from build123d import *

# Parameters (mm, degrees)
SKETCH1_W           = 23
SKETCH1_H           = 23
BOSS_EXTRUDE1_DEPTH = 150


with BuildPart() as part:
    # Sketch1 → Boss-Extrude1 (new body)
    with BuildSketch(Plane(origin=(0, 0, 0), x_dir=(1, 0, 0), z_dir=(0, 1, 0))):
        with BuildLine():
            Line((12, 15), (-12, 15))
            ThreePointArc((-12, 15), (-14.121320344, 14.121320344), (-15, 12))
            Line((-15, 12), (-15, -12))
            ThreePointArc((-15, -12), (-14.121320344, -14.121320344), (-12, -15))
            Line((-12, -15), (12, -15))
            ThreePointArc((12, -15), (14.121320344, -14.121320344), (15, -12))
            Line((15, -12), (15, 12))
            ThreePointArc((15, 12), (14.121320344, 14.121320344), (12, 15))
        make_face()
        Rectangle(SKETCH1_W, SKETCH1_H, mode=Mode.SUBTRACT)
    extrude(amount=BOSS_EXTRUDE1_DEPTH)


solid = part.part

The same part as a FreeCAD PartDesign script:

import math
import FreeCAD as App
import Part
import Sketcher
Q = App.Units.Quantity


def add_polygon(sketch, points):
    """Adds a closed chain of lines whose ends are joined by coincident constraints."""
    first, n = sketch.GeometryCount, len(points)
    for a, b in zip(points, points[1:] + points[:1]):
        sketch.addGeometry(Part.LineSegment(App.Vector(*a, 0), App.Vector(*b, 0)), False)
    for i in range(n):
        sketch.addConstraint(Sketcher.Constraint("Coincident", first + i, 2, first + (i + 1) % n, 1))

doc = App.newDocument("Part")
params = doc.addObject("Spreadsheet::Sheet", "Params")
for row, (alias, value) in enumerate([
    ("sketch1_radius", "3 mm"),
    ("sketch1_width", "24 mm"),
    ("sketch1_width2", "23 mm"),
    ("pad1_length", "150 mm"),
], start=1):
    params.set(f"A{row}", alias)
    params.set(f"B{row}", "=" + value)
    params.setAlias(f"B{row}", alias)

body = doc.addObject("PartDesign::Body", "Body")

# Sketch on XZ plane
sketch1 = doc.addObject("Sketcher::SketchObject", "Sketch")
body.addObject(sketch1)
sketch1.AttachmentSupport = (doc.XZ_Plane, [""])
sketch1.MapMode = "FlatFace"
sketch1.addGeometry(Part.LineSegment(App.Vector(12, -15, 0), App.Vector(-12, -15, 0)), False)  # 0
sketch1.addGeometry(Part.ArcOfCircle(Part.Circle(App.Vector(-12, -12, 0), App.Vector(0, 0, 1), 3), math.radians(180), math.radians(270)), False)  # 1
sketch1.addGeometry(Part.LineSegment(App.Vector(-15, -12, 0), App.Vector(-15, 12, 0)), False)  # 2
sketch1.addGeometry(Part.ArcOfCircle(Part.Circle(App.Vector(-12, 12, 0), App.Vector(0, 0, 1), 3), math.radians(90), math.radians(180)), False)  # 3
sketch1.addGeometry(Part.LineSegment(App.Vector(-12, 15, 0), App.Vector(12, 15, 0)), False)  # 4
sketch1.addGeometry(Part.ArcOfCircle(Part.Circle(App.Vector(12, 12, 0), App.Vector(0, 0, 1), 3), math.radians(0), math.radians(90)), False)  # 5
sketch1.addGeometry(Part.LineSegment(App.Vector(15, 12, 0), App.Vector(15, -12, 0)), False)  # 6
sketch1.addGeometry(Part.ArcOfCircle(Part.Circle(App.Vector(12, -12, 0), App.Vector(0, 0, 1), 3), math.radians(-90), math.radians(0)), False)  # 7
add_polygon(sketch1, [(11.5, 11.5), (-11.5, 11.5), (-11.5, -11.5), (11.5, -11.5)])  # lines 8-11
sketch1.addConstraint([
    Sketcher.Constraint("Tangent", 0, 2, 1, 2),
    Sketcher.Constraint("Tangent", 1, 1, 2, 1),
    Sketcher.Constraint("Tangent", 2, 2, 3, 2),
    Sketcher.Constraint("Tangent", 3, 1, 4, 1),
    Sketcher.Constraint("Tangent", 4, 2, 5, 2),
    Sketcher.Constraint("Tangent", 5, 1, 6, 1),
    Sketcher.Constraint("Tangent", 6, 2, 7, 2),
    Sketcher.Constraint("Tangent", 7, 1, 0, 1),
    Sketcher.Constraint("Horizontal", 0),
    Sketcher.Constraint("Vertical", 2),
    Sketcher.Constraint("Horizontal", 4),
    Sketcher.Constraint("Vertical", 6),
    Sketcher.Constraint("Horizontal", 8),
    Sketcher.Constraint("Vertical", 9),
    Sketcher.Constraint("Horizontal", 10),
    Sketcher.Constraint("Vertical", 11),
    Sketcher.Constraint("Equal", 1, 3),
    Sketcher.Constraint("Equal", 3, 5),
    Sketcher.Constraint("Equal", 5, 7),
    Sketcher.Constraint("Symmetric", 1, 3, 5, 3, -1, 1),
    Sketcher.Constraint("Symmetric", 8, 2, 10, 2, -1, 1),
    Sketcher.Constraint("Equal", 4, 2),
    Sketcher.Constraint("Equal", 10, 9),
    Sketcher.Constraint("Radius", 1, Q("3 mm")),
    Sketcher.Constraint("DistanceX", 0, 2, 0, 1, Q("24 mm")),
    Sketcher.Constraint("DistanceX", 8, 2, 8, 1, Q("23 mm")),
])
sketch1.setExpression("Constraints[27]", "Params.sketch1_radius")
sketch1.setExpression("Constraints[28]", "Params.sketch1_width")
sketch1.setExpression("Constraints[29]", "Params.sketch1_width2")
pad1 = doc.addObject("PartDesign::Pad", "Pad")
body.addObject(pad1)
pad1.Profile = sketch1
pad1.setExpression("Length", "Params.pad1_length")
pad1.Reversed = True

doc.recompute()
